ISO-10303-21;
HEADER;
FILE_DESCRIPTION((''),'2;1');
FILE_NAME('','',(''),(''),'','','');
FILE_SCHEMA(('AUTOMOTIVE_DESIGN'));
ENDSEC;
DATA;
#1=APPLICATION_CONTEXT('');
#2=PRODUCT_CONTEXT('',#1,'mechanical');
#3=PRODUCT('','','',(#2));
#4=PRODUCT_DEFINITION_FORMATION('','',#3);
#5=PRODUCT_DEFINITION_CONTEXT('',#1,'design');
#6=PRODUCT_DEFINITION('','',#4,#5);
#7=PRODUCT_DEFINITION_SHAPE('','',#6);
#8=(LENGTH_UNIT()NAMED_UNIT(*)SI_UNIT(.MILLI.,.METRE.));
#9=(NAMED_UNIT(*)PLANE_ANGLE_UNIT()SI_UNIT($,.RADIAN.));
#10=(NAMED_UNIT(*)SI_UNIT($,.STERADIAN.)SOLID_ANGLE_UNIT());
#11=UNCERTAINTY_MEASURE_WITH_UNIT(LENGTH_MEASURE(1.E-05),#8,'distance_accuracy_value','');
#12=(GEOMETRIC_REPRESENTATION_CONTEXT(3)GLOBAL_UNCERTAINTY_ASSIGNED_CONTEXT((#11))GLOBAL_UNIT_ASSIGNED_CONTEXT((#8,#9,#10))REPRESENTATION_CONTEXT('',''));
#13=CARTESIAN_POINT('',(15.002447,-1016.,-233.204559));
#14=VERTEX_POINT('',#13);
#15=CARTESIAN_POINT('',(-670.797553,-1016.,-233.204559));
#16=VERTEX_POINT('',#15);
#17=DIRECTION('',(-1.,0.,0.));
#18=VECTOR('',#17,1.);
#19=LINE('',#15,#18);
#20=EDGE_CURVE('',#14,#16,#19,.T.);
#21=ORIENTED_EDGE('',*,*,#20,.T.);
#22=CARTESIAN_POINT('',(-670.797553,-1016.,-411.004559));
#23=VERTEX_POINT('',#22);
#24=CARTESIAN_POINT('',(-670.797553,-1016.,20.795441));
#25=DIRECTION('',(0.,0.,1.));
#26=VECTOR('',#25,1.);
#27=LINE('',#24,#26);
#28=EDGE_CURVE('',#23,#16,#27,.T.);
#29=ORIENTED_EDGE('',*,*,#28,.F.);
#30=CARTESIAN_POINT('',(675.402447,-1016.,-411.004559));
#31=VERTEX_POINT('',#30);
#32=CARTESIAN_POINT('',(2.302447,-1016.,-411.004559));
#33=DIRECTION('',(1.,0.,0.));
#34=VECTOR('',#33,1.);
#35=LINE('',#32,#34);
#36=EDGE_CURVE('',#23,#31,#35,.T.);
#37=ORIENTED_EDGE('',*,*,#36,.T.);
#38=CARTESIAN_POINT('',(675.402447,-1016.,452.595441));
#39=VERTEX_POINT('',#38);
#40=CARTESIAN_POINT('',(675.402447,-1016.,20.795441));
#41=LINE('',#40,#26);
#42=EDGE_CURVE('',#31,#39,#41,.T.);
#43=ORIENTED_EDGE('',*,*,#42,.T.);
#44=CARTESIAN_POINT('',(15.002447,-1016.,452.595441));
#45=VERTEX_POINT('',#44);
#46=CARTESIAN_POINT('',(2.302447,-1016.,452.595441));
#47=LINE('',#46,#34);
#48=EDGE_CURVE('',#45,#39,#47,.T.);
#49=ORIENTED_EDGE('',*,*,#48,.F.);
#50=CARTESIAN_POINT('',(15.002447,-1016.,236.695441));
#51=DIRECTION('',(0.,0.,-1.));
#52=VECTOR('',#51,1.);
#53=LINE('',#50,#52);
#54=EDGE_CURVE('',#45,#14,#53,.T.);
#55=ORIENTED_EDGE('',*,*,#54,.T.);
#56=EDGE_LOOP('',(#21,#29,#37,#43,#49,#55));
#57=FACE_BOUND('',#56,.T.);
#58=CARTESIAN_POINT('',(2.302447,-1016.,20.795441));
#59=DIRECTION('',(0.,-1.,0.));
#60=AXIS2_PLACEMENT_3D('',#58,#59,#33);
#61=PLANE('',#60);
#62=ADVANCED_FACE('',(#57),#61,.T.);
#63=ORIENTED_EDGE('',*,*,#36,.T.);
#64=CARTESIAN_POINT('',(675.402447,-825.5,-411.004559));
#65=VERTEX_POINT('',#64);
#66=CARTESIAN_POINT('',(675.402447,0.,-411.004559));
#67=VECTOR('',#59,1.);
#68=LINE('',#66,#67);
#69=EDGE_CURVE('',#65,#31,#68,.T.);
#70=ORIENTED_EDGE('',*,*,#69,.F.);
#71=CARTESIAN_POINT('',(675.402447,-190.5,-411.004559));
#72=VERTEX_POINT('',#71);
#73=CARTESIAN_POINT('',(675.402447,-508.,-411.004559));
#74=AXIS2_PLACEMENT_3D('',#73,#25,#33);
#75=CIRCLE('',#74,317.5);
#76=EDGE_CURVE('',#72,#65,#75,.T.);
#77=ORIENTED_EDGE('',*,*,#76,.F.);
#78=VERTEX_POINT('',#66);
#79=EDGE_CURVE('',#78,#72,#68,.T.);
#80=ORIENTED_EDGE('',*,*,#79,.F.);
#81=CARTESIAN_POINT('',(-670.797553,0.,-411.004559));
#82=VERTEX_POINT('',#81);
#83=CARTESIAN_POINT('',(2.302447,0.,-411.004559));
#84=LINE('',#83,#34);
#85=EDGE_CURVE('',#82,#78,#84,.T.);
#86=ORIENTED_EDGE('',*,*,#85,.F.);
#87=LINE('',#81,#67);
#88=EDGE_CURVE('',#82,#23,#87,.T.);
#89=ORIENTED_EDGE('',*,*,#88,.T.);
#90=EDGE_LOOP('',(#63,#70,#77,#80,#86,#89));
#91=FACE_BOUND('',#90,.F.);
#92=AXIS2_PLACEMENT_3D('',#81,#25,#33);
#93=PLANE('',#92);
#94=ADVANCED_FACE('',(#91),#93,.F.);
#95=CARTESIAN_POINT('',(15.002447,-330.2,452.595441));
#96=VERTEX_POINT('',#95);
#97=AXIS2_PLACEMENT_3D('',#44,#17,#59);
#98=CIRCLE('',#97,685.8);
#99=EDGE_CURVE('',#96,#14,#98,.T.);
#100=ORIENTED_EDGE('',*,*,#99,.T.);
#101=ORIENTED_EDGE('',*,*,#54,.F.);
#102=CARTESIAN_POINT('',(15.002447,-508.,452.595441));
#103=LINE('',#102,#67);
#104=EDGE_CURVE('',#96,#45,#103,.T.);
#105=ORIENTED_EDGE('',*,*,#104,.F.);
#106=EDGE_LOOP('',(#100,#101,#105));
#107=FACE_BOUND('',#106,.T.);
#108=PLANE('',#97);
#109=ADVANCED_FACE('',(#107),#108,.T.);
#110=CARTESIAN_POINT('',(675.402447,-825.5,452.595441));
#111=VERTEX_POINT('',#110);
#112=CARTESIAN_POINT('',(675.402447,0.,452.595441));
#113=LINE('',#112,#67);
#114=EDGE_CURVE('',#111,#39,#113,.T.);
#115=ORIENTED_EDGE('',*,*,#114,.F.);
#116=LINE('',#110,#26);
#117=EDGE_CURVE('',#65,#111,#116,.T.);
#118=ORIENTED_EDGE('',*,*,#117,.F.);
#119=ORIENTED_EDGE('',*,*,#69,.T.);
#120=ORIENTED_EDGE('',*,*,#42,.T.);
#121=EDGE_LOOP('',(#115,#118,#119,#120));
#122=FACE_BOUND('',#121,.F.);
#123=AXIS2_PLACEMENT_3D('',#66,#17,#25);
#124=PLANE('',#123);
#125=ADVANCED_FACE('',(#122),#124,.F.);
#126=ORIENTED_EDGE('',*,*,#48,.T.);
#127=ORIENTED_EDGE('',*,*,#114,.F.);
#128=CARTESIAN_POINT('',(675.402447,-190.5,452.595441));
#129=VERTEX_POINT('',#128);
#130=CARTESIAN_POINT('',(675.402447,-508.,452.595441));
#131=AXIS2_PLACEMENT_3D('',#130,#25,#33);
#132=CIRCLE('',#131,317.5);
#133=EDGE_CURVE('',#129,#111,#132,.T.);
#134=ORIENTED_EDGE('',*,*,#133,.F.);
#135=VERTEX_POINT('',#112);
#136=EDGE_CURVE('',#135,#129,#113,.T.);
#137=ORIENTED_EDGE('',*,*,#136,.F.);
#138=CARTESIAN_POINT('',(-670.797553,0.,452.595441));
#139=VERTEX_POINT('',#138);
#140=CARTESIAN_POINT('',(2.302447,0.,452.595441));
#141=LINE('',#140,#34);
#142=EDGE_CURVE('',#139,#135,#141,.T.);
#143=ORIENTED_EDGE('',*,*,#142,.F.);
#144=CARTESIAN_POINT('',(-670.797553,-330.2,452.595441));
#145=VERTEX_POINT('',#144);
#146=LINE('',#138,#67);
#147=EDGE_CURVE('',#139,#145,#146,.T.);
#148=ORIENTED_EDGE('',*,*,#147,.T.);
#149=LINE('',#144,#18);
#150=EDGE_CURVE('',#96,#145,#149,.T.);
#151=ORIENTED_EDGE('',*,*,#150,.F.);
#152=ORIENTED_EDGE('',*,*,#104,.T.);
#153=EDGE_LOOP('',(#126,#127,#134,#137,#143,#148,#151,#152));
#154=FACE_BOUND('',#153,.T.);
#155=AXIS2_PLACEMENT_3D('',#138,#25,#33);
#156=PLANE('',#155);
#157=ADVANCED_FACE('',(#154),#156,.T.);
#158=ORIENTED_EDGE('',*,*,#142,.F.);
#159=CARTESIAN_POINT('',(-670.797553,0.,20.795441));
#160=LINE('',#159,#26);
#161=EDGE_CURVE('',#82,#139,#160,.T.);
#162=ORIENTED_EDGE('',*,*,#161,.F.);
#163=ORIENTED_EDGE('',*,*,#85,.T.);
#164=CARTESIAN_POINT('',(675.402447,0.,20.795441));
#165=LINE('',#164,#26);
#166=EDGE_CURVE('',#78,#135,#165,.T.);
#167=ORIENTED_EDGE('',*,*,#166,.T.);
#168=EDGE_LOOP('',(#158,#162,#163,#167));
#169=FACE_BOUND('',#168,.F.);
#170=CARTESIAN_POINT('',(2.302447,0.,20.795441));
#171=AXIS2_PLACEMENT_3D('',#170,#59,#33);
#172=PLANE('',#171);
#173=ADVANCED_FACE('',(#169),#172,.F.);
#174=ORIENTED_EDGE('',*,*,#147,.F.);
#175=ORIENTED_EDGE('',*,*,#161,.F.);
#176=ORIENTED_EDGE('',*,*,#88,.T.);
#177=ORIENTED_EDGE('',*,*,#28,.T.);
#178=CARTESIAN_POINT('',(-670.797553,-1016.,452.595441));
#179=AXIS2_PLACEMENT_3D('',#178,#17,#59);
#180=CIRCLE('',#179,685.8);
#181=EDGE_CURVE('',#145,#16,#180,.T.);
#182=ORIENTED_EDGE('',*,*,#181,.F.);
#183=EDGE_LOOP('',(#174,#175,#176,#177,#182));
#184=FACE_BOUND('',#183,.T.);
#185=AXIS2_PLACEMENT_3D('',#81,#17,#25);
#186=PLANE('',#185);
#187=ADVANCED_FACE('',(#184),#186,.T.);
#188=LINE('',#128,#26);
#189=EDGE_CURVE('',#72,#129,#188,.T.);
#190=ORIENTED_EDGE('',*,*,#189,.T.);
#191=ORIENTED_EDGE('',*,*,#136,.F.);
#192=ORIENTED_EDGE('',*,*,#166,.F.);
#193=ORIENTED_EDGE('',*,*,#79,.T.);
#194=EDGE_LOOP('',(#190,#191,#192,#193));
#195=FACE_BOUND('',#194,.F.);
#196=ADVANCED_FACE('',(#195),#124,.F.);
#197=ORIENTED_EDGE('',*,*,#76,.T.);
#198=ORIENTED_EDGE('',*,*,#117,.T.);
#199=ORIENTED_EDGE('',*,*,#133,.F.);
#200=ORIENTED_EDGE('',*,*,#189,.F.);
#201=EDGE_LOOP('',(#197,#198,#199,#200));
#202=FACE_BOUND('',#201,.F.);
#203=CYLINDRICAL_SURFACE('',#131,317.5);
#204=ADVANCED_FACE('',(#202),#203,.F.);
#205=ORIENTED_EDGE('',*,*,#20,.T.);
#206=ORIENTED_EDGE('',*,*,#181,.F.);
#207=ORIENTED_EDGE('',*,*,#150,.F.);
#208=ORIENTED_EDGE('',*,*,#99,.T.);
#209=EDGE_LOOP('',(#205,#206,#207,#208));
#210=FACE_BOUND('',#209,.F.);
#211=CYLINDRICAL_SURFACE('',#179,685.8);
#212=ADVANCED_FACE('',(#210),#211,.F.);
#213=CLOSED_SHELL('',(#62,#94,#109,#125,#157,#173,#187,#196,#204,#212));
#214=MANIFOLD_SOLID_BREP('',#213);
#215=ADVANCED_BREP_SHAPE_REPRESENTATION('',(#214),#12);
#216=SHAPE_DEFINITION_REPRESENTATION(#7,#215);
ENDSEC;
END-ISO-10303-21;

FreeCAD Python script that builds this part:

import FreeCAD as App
import Part
import Sketcher

V = App.Vector
Q = App.Units.Quantity

doc = App.newDocument("Part")
params = doc.addObject("Spreadsheet::Sheet", "Params")
for row, (alias, value) in enumerate([
    ("sketch1_width", "53 in"),
    ("sketch1_height", "34 in"),
    ("pad1_length", "40 in"),
    ("sketch2_diameter", "25 in"),
    ("pocket1_length", "34 in"),
    ("sketch3_diameter", "54 in"),
    ("pocket2_length", "27 in"),
], start=1):
    params.set(f"A{row}", alias)
    params.set(f"B{row}", "=" + value)
    params.setAlias(f"B{row}", alias)

body = doc.addObject("PartDesign::Body", "Body")

sketch1 = body.newObject("Sketcher::SketchObject", "Sketch")
sketch1.AttachmentSupport = (doc.getObject("XZ_Plane"), [""])
sketch1.MapMode = "FlatFace"
sketch1.addGeometry(Part.LineSegment(V(-670.797553, 452.595441, 0), V(-670.797553, -411.004559, 0)), False)
sketch1.addGeometry(Part.LineSegment(V(-670.797553, -411.004559, 0), V(675.402447, -411.004559, 0)), False)
sketch1.addGeometry(Part.LineSegment(V(675.402447, -411.004559, 0), V(675.402447, 452.595441, 0)), False)
sketch1.addGeometry(Part.LineSegment(V(675.402447, 452.595441, 0), V(-670.797553, 452.595441, 0)), False)
sketch1.addConstraint(Sketcher.Constraint("Coincident", 0, 2, 1, 1))
sketch1.addConstraint(Sketcher.Constraint("Coincident", 1, 2, 2, 1))
sketch1.addConstraint(Sketcher.Constraint("Coincident", 2, 2, 3, 1))
sketch1.addConstraint(Sketcher.Constraint("Coincident", 3, 2, 0, 1))
sketch1.addConstraint(Sketcher.Constraint("Vertical", 0))
sketch1.addConstraint(Sketcher.Constraint("Horizontal", 1))
sketch1.addConstraint(Sketcher.Constraint("Vertical", 2))
sketch1.addConstraint(Sketcher.Constraint("Horizontal", 3))
sketch1.addConstraint(Sketcher.Constraint("DistanceX", 1, 1, 1, 2, Q("53 in")))
sketch1.addConstraint(Sketcher.Constraint("DistanceY", 0, 2, 0, 1, Q("34 in")))
sketch1.addConstraint(Sketcher.Constraint("DistanceY", 0, 2, -1, 1, Q("411.004559 mm")))
sketch1.addConstraint(Sketcher.Constraint("DistanceX", 0, 2, -1, 1, Q("670.797553 mm")))
sketch1.setExpression("Constraints[8]", "Params.sketch1_width")
sketch1.setExpression("Constraints[9]", "Params.sketch1_height")
pad1 = body.newObject("PartDesign::Pad", "Pad")
pad1.Profile = sketch1
pad1.setExpression("Length", "Params.pad1_length")

sketch2 = body.newObject("Sketcher::SketchObject", "Sketch001")
sketch2.AttachmentSupport = (doc.getObject("XY_Plane"), [""])
sketch2.MapMode = "FlatFace"
sketch2.AttachmentOffset = App.Placement(V(0, 0, 452.595441), App.Rotation())
sketch2.addGeometry(Part.Circle(V(675.402447, -508, 0), V(0, 0, 1), 317.5), False)
sketch2.addConstraint(Sketcher.Constraint("Diameter", 0, Q("25 in")))
sketch2.addConstraint(Sketcher.Constraint("DistanceY", 0, 3, -1, 1, Q("20 in")))
sketch2.addConstraint(Sketcher.Constraint("DistanceX", -1, 1, 0, 3, Q("675.402447 mm")))
sketch2.setExpression("Constraints[0]", "Params.sketch2_diameter")
pocket1 = body.newObject("PartDesign::Pocket", "Pocket")
pocket1.Profile = sketch2
pocket1.setExpression("Length", "Params.pocket1_length")

sketch3 = body.newObject("Sketcher::SketchObject", "Sketch002")
sketch3.AttachmentSupport = (doc.getObject("YZ_Plane"), [""])
sketch3.MapMode = "FlatFace"
sketch3.AttachmentOffset = App.Placement(V(0, 0, -670.797553), App.Rotation())
sketch3.addGeometry(Part.Circle(V(-1016, 452.595441, 0), V(0, 0, 1), 685.8), False)
sketch3.addConstraint(Sketcher.Constraint("Diameter", 0, Q("54 in")))
sketch3.addConstraint(Sketcher.Constraint("DistanceX", 0, 3, -1, 1, Q("40 in")))
sketch3.addConstraint(Sketcher.Constraint("DistanceY", -1, 1, 0, 3, Q("452.595441 mm")))
sketch3.setExpression("Constraints[0]", "Params.sketch3_diameter")
pocket2 = body.newObject("PartDesign::Pocket", "Pocket001")
pocket2.Profile = sketch3
pocket2.setExpression("Length", "Params.pocket2_length")
pocket2.Reversed = True

doc.recompute()
